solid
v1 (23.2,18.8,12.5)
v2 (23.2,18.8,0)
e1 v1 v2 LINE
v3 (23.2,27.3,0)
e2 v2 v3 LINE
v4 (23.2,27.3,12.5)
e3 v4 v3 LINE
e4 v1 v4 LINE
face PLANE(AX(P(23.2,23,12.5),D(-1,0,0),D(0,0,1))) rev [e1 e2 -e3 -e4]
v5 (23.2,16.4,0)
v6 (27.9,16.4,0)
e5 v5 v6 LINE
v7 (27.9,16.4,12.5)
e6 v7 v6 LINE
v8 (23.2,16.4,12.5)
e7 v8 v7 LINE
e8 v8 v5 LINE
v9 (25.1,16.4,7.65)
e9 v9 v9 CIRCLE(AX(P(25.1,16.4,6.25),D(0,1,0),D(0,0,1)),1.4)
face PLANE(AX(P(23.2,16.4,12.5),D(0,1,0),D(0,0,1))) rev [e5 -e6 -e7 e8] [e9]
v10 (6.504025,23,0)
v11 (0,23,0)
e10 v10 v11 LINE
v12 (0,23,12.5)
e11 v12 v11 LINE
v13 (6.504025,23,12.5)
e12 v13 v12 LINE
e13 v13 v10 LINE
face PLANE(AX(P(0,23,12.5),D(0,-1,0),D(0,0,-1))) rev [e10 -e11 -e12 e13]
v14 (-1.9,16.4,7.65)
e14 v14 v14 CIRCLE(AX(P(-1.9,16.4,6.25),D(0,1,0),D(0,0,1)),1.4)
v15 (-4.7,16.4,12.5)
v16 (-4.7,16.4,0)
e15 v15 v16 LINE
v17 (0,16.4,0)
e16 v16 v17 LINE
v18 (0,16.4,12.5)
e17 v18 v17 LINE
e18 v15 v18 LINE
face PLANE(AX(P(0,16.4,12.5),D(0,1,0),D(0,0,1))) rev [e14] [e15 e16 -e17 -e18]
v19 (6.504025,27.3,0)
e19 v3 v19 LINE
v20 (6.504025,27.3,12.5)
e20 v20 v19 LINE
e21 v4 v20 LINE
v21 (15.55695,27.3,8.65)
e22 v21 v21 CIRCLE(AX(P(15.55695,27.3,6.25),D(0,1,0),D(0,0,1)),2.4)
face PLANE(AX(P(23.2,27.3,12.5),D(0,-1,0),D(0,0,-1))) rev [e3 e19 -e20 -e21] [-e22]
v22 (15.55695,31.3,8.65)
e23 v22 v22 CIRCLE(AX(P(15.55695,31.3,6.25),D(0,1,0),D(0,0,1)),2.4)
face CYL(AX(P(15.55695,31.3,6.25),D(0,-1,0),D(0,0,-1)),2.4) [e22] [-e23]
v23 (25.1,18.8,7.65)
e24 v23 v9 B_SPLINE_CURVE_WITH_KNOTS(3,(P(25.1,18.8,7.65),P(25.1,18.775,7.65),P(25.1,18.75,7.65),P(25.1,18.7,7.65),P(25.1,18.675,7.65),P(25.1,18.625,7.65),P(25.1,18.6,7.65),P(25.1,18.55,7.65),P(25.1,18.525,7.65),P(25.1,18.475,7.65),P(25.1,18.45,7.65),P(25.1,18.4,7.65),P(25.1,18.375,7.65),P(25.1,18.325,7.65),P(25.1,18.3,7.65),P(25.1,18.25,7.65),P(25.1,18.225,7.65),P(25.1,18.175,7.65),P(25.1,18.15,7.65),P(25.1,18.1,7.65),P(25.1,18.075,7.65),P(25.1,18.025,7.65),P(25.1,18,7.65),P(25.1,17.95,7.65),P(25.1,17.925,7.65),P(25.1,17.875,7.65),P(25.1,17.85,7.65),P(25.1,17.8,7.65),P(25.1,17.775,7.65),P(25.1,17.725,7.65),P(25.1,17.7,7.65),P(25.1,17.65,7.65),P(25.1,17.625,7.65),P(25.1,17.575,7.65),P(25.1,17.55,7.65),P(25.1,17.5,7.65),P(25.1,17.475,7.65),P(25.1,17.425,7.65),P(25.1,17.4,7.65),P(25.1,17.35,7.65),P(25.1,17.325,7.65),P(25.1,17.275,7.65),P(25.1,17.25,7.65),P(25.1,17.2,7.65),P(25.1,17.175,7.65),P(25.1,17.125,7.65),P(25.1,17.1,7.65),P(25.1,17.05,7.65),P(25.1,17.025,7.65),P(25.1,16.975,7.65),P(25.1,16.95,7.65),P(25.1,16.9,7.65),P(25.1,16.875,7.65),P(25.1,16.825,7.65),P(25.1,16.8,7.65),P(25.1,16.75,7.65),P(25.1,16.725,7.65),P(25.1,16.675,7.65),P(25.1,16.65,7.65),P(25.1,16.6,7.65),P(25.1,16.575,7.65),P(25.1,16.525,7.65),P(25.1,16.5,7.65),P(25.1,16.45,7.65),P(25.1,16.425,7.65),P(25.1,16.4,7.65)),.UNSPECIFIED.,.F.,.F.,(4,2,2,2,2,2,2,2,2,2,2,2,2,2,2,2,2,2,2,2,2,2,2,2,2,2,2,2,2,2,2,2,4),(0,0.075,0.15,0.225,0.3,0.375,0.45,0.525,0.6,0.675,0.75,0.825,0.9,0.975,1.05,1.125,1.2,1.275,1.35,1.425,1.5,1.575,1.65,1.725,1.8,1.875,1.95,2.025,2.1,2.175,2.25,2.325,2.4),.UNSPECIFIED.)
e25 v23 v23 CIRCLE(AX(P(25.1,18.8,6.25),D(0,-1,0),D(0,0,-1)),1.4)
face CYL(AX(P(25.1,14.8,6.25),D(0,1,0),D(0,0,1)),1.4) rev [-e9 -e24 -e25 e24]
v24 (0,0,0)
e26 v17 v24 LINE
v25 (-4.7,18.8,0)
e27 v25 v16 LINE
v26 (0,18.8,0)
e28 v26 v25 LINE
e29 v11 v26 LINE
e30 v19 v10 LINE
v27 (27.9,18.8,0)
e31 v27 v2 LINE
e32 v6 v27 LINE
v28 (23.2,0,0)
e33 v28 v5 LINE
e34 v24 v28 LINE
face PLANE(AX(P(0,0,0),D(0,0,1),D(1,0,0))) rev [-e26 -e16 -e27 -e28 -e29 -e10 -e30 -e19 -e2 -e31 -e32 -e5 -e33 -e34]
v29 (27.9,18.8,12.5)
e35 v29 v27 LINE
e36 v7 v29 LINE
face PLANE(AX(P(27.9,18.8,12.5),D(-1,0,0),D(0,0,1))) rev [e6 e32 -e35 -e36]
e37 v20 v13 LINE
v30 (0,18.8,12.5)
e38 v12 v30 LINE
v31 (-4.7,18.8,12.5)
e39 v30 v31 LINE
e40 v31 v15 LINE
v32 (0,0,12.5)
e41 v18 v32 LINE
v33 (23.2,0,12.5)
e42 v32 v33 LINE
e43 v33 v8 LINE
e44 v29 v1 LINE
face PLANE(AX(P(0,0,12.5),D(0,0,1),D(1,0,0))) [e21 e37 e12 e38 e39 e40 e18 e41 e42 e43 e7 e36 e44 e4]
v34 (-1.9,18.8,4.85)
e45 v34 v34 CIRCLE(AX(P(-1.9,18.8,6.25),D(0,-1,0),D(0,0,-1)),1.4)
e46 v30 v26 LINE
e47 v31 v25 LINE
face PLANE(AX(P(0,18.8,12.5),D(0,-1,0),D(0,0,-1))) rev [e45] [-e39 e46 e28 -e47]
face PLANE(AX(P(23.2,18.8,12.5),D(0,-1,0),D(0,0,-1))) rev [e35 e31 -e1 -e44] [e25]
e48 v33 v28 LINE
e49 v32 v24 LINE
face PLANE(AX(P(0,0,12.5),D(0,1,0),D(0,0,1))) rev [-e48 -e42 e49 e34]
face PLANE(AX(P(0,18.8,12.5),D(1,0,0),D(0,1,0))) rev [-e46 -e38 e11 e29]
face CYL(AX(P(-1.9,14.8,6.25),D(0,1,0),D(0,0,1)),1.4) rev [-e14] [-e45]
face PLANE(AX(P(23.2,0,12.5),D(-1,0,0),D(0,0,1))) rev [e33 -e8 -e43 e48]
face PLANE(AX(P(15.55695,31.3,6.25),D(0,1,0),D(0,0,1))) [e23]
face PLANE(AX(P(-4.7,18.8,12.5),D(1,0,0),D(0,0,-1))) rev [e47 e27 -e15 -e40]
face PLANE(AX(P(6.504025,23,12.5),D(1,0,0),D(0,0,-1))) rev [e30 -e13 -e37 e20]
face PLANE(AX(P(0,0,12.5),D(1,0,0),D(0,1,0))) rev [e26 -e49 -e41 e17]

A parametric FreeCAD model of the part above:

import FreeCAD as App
import Part
import Sketcher
from FreeCAD import Vector
Q = App.Units.Quantity


def add_polygon(sketch, points):
    """Adds a closed chain of lines whose ends are joined by coincident constraints."""
    first, n = sketch.GeometryCount, len(points)
    for a, b in zip(points, points[1:] + points[:1]):
        sketch.addGeometry(Part.LineSegment(App.Vector(*a, 0), App.Vector(*b, 0)), False)
    for i in range(n):
        sketch.addConstraint(Sketcher.Constraint("Coincident", first + i, 2, first + (i + 1) % n, 1))

doc = App.newDocument("Part")
params = doc.addObject("Spreadsheet::Sheet", "Params")
for row, (alias, value) in enumerate([
    ("sketch1_width", "4.7 mm"),
    ("sketch1_width2", "23.2 mm"),
    ("sketch1_height", "4.2 mm"),
    ("sketch1_height2", "2.4 mm"),
    ("sketch1_height3", "16.4 mm"),
    ("pad1_length", "12.5 mm"),
    ("sketch2_diameter", "2.8 mm"),
    ("pocket1_length", "12.5 mm"),
    ("sketch3_diameter", "4.8 mm"),
    ("pad2_length", "4 mm"),
], start=1):
    params.set(f"A{row}", alias)
    params.set(f"B{row}", "=" + value)
    params.setAlias(f"B{row}", alias)

body = doc.addObject("PartDesign::Body", "Body")

sketch1 = body.newObject("Sketcher::SketchObject", "Sketch")
sketch1.AttachmentSupport = (doc.getObject("XY_Plane"), [""])
sketch1.MapMode = "FlatFace"
add_polygon(sketch1, [(0, 23), (0, 18.8), (-4.7, 18.8), (-4.7, 16.4), (0, 16.4), (0, 0), (23.2, 0), (23.2, 16.4), (27.9, 16.4), (27.9, 18.8), (23.2, 18.8), (23.2, 27.3), (6.504025, 27.3), (6.504025, 23)])
sketch1.addConstraint(Sketcher.Constraint("Vertical", 0))
sketch1.addConstraint(Sketcher.Constraint("Horizontal", 1))
sketch1.addConstraint(Sketcher.Constraint("Vertical", 2))
sketch1.addConstraint(Sketcher.Constraint("Horizontal", 3))
sketch1.addConstraint(Sketcher.Constraint("Vertical", 4))
sketch1.addConstraint(Sketcher.Constraint("Horizontal", 5))
sketch1.addConstraint(Sketcher.Constraint("Vertical", 6))
sketch1.addConstraint(Sketcher.Constraint("Horizontal", 7))
sketch1.addConstraint(Sketcher.Constraint("Vertical", 8))
sketch1.addConstraint(Sketcher.Constraint("Horizontal", 9))
sketch1.addConstraint(Sketcher.Constraint("Vertical", 10))
sketch1.addConstraint(Sketcher.Constraint("Horizontal", 11))
sketch1.addConstraint(Sketcher.Constraint("Vertical", 12))
sketch1.addConstraint(Sketcher.Constraint("Horizontal", 13))
sketch1.addConstraint(Sketcher.Constraint("Coincident", 4, 2, -1, 1))
sketch1.addConstraint(Sketcher.Constraint("PointOnObject", 0, 2, -2))
sketch1.addConstraint(Sketcher.Constraint("Horizontal", 3, 2, 6, 2))
sketch1.addConstraint(Sketcher.Constraint("Horizontal", 1, 2, 8, 2))
sketch1.addConstraint(Sketcher.Constraint("Vertical", 6, 2, 9, 2))
sketch1.addConstraint(Sketcher.Constraint("Equal", 3, 7))
sketch1.addConstraint(Sketcher.Constraint("DistanceX", 1, 2, 1, 1, Q("4.7 mm")))
sketch1.addConstraint(Sketcher.Constraint("DistanceX", 5, 1, 5, 2, Q("23.2 mm")))
sketch1.addConstraint(Sketcher.Constraint("DistanceY", 0, 2, 0, 1, Q("4.2 mm")))
sketch1.addConstraint(Sketcher.Constraint("DistanceY", 2, 2, 2, 1, Q("2.4 mm")))
sketch1.addConstraint(Sketcher.Constraint("DistanceY", 4, 2, 4, 1, Q("16.4 mm")))
sketch1.addConstraint(Sketcher.Constraint("DistanceY", 10, 1, 10, 2, Q("8.5 mm")))
sketch1.addConstraint(Sketcher.Constraint("DistanceX", 11, 2, 11, 1, Q("16.695975 mm")))
sketch1.setExpression("Constraints[34]", "Params.sketch1_width")
sketch1.setExpression("Constraints[35]", "Params.sketch1_width2")
sketch1.setExpression("Constraints[36]", "Params.sketch1_height")
sketch1.setExpression("Constraints[37]", "Params.sketch1_height2")
sketch1.setExpression("Constraints[38]", "Params.sketch1_height3")
pad1 = body.newObject("PartDesign::Pad", "Pad")
pad1.Profile = sketch1
pad1.setExpression("Length", "Params.pad1_length")

sketch2 = body.newObject("Sketcher::SketchObject", "Sketch001")
sketch2.AttachmentSupport = (doc.getObject("XZ_Plane"), [""])
sketch2.MapMode = "FlatFace"
sketch2.AttachmentOffset = App.Placement(Vector(0, 0, -27.3), App.Rotation())
sketch2.addGeometry(Part.Circle(Vector(-1.9, 6.25, 0), Vector(0, 0, 1), 1.4), False)
sketch2.addGeometry(Part.Circle(Vector(25.1, 6.25, 0), Vector(0, 0, 1), 1.4), False)
sketch2.addConstraint(Sketcher.Constraint("Equal", 0, 1))
sketch2.addConstraint(Sketcher.Constraint("Horizontal", 0, 3, 1, 3))
sketch2.addConstraint(Sketcher.Constraint("Diameter", 0, Q("2.8 mm")))
sketch2.addConstraint(Sketcher.Constraint("DistanceX", 0, 3, 1, 3, Q("27 mm")))
sketch2.addConstraint(Sketcher.Constraint("DistanceX", 0, 3, -1, 1, Q("1.9 mm")))
sketch2.addConstraint(Sketcher.Constraint("DistanceY", -1, 1, 0, 3, Q("6.25 mm")))
sketch2.setExpression("Constraints[2]", "Params.sketch2_diameter")
pocket1 = body.newObject("PartDesign::Pocket", "Pocket")
pocket1.Profile = sketch2
pocket1.setExpression("Length", "Params.pocket1_length")
pocket1.Reversed = True

sketch3 = body.newObject("Sketcher::SketchObject", "Sketch002")
sketch3.AttachmentSupport = (doc.getObject("XZ_Plane"), [""])
sketch3.MapMode = "FlatFace"
sketch3.AttachmentOffset = App.Placement(Vector(0, 0, -27.3), App.Rotation())
sketch3.addGeometry(Part.Circle(Vector(15.55695, 6.25, 0), Vector(0, 0, 1), 2.4), False)
sketch3.addConstraint(Sketcher.Constraint("Diameter", 0, Q("4.8 mm")))
sketch3.addConstraint(Sketcher.Constraint("DistanceY", -1, 1, 0, 3, Q("6.25 mm")))
sketch3.addConstraint(Sketcher.Constraint("DistanceX", -1, 1, 0, 3, Q("15.55695 mm")))
sketch3.setExpression("Constraints[0]", "Params.sketch3_diameter")
pad2 = body.newObject("PartDesign::Pad", "Pad001")
pad2.Profile = sketch3
pad2.setExpression("Length", "Params.pad2_length")
pad2.Reversed = True

doc.recompute()
